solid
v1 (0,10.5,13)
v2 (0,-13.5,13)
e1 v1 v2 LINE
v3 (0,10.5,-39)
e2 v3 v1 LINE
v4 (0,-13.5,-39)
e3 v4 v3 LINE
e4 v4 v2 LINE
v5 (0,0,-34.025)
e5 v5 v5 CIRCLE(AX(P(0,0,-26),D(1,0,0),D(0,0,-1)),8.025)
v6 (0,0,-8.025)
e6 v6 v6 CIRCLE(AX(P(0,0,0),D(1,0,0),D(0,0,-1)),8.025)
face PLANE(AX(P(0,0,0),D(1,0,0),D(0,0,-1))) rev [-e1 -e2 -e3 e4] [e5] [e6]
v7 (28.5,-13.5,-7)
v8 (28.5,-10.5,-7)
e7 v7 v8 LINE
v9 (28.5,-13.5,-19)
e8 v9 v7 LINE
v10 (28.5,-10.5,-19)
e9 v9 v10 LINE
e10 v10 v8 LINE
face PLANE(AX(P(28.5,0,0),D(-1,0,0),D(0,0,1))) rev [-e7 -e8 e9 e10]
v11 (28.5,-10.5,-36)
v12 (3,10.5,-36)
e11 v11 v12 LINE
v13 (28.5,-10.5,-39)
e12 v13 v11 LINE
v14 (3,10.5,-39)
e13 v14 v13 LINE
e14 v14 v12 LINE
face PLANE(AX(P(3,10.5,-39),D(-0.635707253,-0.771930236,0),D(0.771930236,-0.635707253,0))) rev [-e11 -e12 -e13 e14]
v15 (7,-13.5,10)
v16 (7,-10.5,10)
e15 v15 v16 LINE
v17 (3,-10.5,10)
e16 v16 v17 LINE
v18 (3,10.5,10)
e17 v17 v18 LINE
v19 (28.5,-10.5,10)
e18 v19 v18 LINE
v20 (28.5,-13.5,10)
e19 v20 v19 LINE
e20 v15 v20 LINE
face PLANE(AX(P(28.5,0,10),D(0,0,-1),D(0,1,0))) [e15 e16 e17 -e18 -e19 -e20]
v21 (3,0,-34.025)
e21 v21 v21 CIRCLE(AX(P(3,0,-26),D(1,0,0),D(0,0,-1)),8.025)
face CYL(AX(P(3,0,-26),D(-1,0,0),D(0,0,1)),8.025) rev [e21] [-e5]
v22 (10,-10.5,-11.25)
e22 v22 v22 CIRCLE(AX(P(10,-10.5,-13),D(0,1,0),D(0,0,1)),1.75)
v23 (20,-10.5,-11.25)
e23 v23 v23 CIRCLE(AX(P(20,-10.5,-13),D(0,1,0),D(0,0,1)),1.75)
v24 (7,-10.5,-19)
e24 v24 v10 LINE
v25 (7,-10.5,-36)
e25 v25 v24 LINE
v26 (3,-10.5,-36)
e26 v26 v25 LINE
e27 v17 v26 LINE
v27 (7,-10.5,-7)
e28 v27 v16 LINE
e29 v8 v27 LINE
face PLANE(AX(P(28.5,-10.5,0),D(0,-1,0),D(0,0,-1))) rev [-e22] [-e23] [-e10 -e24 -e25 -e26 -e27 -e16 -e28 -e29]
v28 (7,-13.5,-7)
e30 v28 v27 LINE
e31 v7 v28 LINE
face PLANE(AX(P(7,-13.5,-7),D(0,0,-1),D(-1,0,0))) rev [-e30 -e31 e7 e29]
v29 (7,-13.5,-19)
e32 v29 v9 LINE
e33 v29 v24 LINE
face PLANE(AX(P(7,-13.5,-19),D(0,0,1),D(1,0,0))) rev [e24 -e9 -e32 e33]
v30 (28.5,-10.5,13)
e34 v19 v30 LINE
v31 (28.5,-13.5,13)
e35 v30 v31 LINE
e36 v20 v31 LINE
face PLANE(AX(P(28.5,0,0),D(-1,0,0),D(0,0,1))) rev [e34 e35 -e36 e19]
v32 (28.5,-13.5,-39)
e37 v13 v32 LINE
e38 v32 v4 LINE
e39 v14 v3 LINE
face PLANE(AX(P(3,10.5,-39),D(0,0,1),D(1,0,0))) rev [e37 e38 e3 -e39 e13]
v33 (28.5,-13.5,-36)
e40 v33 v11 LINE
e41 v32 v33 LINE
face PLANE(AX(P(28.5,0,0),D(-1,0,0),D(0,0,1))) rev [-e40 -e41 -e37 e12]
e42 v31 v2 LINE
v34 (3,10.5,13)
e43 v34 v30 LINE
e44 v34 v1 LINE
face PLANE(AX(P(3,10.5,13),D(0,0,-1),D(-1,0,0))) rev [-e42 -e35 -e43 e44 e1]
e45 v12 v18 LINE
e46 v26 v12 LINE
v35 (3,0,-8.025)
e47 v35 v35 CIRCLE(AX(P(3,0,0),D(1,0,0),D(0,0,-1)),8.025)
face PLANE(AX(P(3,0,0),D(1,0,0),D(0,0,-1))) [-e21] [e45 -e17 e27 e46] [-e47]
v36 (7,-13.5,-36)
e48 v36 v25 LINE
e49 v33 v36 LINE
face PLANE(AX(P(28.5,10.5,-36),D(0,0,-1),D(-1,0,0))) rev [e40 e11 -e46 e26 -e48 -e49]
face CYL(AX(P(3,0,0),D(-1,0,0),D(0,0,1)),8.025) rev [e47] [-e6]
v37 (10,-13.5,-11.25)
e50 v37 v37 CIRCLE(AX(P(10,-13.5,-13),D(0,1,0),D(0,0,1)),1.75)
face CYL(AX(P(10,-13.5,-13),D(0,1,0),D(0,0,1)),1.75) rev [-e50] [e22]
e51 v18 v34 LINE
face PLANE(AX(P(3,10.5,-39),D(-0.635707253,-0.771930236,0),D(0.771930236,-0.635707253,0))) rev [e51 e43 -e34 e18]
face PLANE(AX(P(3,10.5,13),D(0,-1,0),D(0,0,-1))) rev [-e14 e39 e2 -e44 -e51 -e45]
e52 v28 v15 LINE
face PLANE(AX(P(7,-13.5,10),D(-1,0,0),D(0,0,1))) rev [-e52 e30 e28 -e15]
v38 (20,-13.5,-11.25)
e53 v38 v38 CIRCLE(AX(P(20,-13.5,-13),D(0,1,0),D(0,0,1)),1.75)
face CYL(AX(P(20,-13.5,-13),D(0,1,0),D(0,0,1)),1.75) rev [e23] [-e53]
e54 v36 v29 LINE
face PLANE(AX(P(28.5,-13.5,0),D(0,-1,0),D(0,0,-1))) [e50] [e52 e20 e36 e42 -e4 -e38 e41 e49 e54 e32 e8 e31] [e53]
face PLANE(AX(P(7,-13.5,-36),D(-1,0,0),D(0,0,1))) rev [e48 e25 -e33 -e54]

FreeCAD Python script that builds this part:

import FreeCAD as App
import Part
import Sketcher
Q = App.Units.Quantity


def add_polygon(sketch, points):
    """Adds a closed chain of lines whose ends are joined by coincident constraints."""
    first, n = sketch.GeometryCount, len(points)
    for a, b in zip(points, points[1:] + points[:1]):
        sketch.addGeometry(Part.LineSegment(App.Vector(*a, 0), App.Vector(*b, 0)), False)
    for i in range(n):
        sketch.addConstraint(Sketcher.Constraint("Coincident", first + i, 2, first + (i + 1) % n, 1))

doc = App.newDocument("Part")
body = doc.addObject("PartDesign::Body", "Body")

# Sketch on YZ plane
sketch1 = doc.addObject("Sketcher::SketchObject", "Sketch")
body.addObject(sketch1)
sketch1.AttachmentSupport = (doc.YZ_Plane, [""])
sketch1.MapMode = "FlatFace"
add_polygon(sketch1, [(10, 13), (-10, 13), (-10, -39), (10, -39)])  # lines 0-3
sketch1.addGeometry(Part.Circle(App.Vector(0, 0, 0), App.Vector(0, 0, 1), 8), False)  # 4
sketch1.addGeometry(Part.Circle(App.Vector(0, -26, 0), App.Vector(0, 0, 1), 8), False)  # 5
sketch1.addConstraint(Sketcher.Constraint("Horizontal", 0))
sketch1.addConstraint(Sketcher.Constraint("Vertical", 1))
sketch1.addConstraint(Sketcher.Constraint("Horizontal", 2))
sketch1.addConstraint(Sketcher.Constraint("Vertical", 3))
sketch1.addConstraint(Sketcher.Constraint("Coincident", 4, 3, -1, 1))
sketch1.addConstraint(Sketcher.Constraint("Equal", 4, 5))
sketch1.addConstraint(Sketcher.Constraint("PointOnObject", 5, 3, -2))
sketch1.addConstraint(Sketcher.Constraint("Diameter", 4, Q("16.05 mm")))
sketch1.addConstraint(Sketcher.Constraint("DistanceX", 0, 2, 0, 1, Q("21 mm")))
sketch1.addConstraint(Sketcher.Constraint("DistanceY", 1, 2, 1, 1, Q("52 mm")))
sketch1.addConstraint(Sketcher.Constraint("DistanceY", 5, 3, -1, 1, Q("26 mm")))
sketch1.addConstraint(Sketcher.Constraint("DistanceY", -1, 1, 0, 2, Q("13 mm")))
sketch1.addConstraint(Sketcher.Constraint("DistanceX", 0, 2, -1, 1, Q("10.5 mm")))
pad1 = doc.addObject("PartDesign::Pad", "Pad")
body.addObject(pad1)
pad1.Profile = sketch1
pad1.Length = 3

# Sketch on YZ plane
sketch2 = doc.addObject("Sketcher::SketchObject", "Sketch001")
body.addObject(sketch2)
sketch2.AttachmentSupport = (doc.YZ_Plane, [""])
sketch2.MapMode = "FlatFace"
add_polygon(sketch2, [(-13.5, -39), (-13.5, 13), (10.5, 13), (10.5, 10), (-10.5, 10), (-10.5, -36), (10.5, -36), (10.5, -39)])  # lines 0-7
sketch2.addConstraint(Sketcher.Constraint("Vertical", 0))
sketch2.addConstraint(Sketcher.Constraint("Horizontal", 1))
sketch2.addConstraint(Sketcher.Constraint("Vertical", 2))
sketch2.addConstraint(Sketcher.Constraint("Horizontal", 3))
sketch2.addConstraint(Sketcher.Constraint("Vertical", 4))
sketch2.addConstraint(Sketcher.Constraint("Horizontal", 5))
sketch2.addConstraint(Sketcher.Constraint("Vertical", 6))
sketch2.addConstraint(Sketcher.Constraint("Horizontal", 7))
sketch2.addConstraint(Sketcher.Constraint("Vertical", 2, 2, 5, 2))
sketch2.addConstraint(Sketcher.Constraint("Equal", 2, 6))
sketch2.addConstraint(Sketcher.Constraint("DistanceX", 1, 1, 1, 2, Q("24 mm")))
sketch2.addConstraint(Sketcher.Constraint("DistanceX", 3, 2, 3, 1, Q("21 mm")))
sketch2.addConstraint(Sketcher.Constraint("DistanceY", 0, 1, 0, 2, Q("52 mm")))
sketch2.addConstraint(Sketcher.Constraint("DistanceY", 2, 2, 2, 1, Q("3 mm")))
sketch2.addConstraint(Sketcher.Constraint("DistanceY", -1, 1, 0, 2, Q("13 mm")))
sketch2.addConstraint(Sketcher.Constraint("DistanceX", 0, 2, -1, 1, Q("13.5 mm")))
pad2 = doc.addObject("PartDesign::Pad", "Pad001")
body.addObject(pad2)
pad2.Profile = sketch2
pad2.Length = 28.5

# Sketch on XY plane
sketch3 = doc.addObject("Sketcher::SketchObject", "Sketch002")
body.addObject(sketch3)
sketch3.AttachmentSupport = (doc.XY_Plane, [""])
sketch3.MapMode = "FlatFace"
sketch3.AttachmentOffset = App.Placement(App.Vector(0, 0, 13), App.Rotation())
add_polygon(sketch3, [(3, 10), (28, -10), (28, 10)])  # lines 0-2
sketch3.addConstraint(Sketcher.Constraint("Vertical", 1))
sketch3.addConstraint(Sketcher.Constraint("Horizontal", 2))
sketch3.addConstraint(Sketcher.Constraint("DistanceY", 1, 1, 1, 2, Q("21 mm")))
sketch3.addConstraint(Sketcher.Constraint("DistanceX", 2, 2, 2, 1, Q("25.5 mm")))
sketch3.addConstraint(Sketcher.Constraint("DistanceX", -1, 1, 2, 2, Q("3 mm")))
sketch3.addConstraint(Sketcher.Constraint("DistanceY", 0, 2, -1, 1, Q("10.5 mm")))
pocket1 = doc.addObject("PartDesign::Pocket", "Pocket")
body.addObject(pocket1)
pocket1.Profile = sketch3
pocket1.Type = "ThroughAll"

# Sketch on XZ plane
sketch4 = doc.addObject("Sketcher::SketchObject", "Sketch003")
body.addObject(sketch4)
sketch4.AttachmentSupport = (doc.XZ_Plane, [""])
sketch4.MapMode = "FlatFace"
sketch4.AttachmentOffset = App.Placement(App.Vector(0, 0, 10.5), App.Rotation())
sketch4.addGeometry(Part.Circle(App.Vector(10, -13, 0), App.Vector(0, 0, 1), 1.8), False)
sketch4.addGeometry(Part.Circle(App.Vector(20, -13, 0), App.Vector(0, 0, 1), 1.8), False)
sketch4.addConstraint(Sketcher.Constraint("Equal", 0, 1))
sketch4.addConstraint(Sketcher.Constraint("Horizontal", 0, 3, 1, 3))
sketch4.addConstraint(Sketcher.Constraint("Diameter", 0, Q("3.5 mm")))
sketch4.addConstraint(Sketcher.Constraint("DistanceX", -1, 1, 0, 3, Q("10 mm")))
sketch4.addConstraint(Sketcher.Constraint("DistanceY", 0, 3, -1, 1, Q("13 mm")))
sketch4.addConstraint(Sketcher.Constraint("DistanceX", -1, 1, 1, 3, Q("20 mm")))
pocket2 = doc.addObject("PartDesign::Pocket", "Pocket001")
body.addObject(pocket2)
pocket2.Profile = sketch4
pocket2.Type = "ThroughAll"
pocket2.Reversed = True

# Sketch on XZ plane
sketch5 = doc.addObject("Sketcher::SketchObject", "Sketch004")
body.addObject(sketch5)
sketch5.AttachmentSupport = (doc.XZ_Plane, [""])
sketch5.MapMode = "FlatFace"
sketch5.AttachmentOffset = App.Placement(App.Vector(0, 0, 10.5), App.Rotation())
add_polygon(sketch5, [(7, -36), (7, -19), (28, -19), (28, -36)])  # lines 0-3
add_polygon(sketch5, [(7, -7), (7, 10), (28, 10), (28, -7)])  # lines 4-7
sketch5.addConstraint(Sketcher.Constraint("Vertical", 0))
sketch5.addConstraint(Sketcher.Constraint("Horizontal", 1))
sketch5.addConstraint(Sketcher.Constraint("Vertical", 2))
sketch5.addConstraint(Sketcher.Constraint("Horizontal", 3))
sketch5.addConstraint(Sketcher.Constraint("Vertical", 4))
sketch5.addConstraint(Sketcher.Constraint("Horizontal", 5))
sketch5.addConstraint(Sketcher.Constraint("Vertical", 6))
sketch5.addConstraint(Sketcher.Constraint("Horizontal", 7))
sketch5.addConstraint(Sketcher.Constraint("Vertical", 3, 2, 4, 2))
sketch5.addConstraint(Sketcher.Constraint("Vertical", 2, 2, 5, 2))
sketch5.addConstraint(Sketcher.Constraint("Equal", 2, 4))
sketch5.addConstraint(Sketcher.Constraint("DistanceY", 0, 1, 0, 2, Q("17 mm")))
sketch5.addConstraint(Sketcher.Constraint("DistanceX", 1, 1, 1, 2, Q("21.5 mm")))
sketch5.addConstraint(Sketcher.Constraint("DistanceX", -1, 1, 0, 2, Q("7 mm")))
sketch5.addConstraint(Sketcher.Constraint("DistanceY", 0, 2, -1, 1, Q("19 mm")))
sketch5.addConstraint(Sketcher.Constraint("DistanceY", -1, 1, 4, 2, Q("10 mm")))
pocket3 = doc.addObject("PartDesign::Pocket", "Pocket002")
body.addObject(pocket3)
pocket3.Profile = sketch5
pocket3.Type = "ThroughAll"
pocket3.Reversed = True

doc.recompute()
